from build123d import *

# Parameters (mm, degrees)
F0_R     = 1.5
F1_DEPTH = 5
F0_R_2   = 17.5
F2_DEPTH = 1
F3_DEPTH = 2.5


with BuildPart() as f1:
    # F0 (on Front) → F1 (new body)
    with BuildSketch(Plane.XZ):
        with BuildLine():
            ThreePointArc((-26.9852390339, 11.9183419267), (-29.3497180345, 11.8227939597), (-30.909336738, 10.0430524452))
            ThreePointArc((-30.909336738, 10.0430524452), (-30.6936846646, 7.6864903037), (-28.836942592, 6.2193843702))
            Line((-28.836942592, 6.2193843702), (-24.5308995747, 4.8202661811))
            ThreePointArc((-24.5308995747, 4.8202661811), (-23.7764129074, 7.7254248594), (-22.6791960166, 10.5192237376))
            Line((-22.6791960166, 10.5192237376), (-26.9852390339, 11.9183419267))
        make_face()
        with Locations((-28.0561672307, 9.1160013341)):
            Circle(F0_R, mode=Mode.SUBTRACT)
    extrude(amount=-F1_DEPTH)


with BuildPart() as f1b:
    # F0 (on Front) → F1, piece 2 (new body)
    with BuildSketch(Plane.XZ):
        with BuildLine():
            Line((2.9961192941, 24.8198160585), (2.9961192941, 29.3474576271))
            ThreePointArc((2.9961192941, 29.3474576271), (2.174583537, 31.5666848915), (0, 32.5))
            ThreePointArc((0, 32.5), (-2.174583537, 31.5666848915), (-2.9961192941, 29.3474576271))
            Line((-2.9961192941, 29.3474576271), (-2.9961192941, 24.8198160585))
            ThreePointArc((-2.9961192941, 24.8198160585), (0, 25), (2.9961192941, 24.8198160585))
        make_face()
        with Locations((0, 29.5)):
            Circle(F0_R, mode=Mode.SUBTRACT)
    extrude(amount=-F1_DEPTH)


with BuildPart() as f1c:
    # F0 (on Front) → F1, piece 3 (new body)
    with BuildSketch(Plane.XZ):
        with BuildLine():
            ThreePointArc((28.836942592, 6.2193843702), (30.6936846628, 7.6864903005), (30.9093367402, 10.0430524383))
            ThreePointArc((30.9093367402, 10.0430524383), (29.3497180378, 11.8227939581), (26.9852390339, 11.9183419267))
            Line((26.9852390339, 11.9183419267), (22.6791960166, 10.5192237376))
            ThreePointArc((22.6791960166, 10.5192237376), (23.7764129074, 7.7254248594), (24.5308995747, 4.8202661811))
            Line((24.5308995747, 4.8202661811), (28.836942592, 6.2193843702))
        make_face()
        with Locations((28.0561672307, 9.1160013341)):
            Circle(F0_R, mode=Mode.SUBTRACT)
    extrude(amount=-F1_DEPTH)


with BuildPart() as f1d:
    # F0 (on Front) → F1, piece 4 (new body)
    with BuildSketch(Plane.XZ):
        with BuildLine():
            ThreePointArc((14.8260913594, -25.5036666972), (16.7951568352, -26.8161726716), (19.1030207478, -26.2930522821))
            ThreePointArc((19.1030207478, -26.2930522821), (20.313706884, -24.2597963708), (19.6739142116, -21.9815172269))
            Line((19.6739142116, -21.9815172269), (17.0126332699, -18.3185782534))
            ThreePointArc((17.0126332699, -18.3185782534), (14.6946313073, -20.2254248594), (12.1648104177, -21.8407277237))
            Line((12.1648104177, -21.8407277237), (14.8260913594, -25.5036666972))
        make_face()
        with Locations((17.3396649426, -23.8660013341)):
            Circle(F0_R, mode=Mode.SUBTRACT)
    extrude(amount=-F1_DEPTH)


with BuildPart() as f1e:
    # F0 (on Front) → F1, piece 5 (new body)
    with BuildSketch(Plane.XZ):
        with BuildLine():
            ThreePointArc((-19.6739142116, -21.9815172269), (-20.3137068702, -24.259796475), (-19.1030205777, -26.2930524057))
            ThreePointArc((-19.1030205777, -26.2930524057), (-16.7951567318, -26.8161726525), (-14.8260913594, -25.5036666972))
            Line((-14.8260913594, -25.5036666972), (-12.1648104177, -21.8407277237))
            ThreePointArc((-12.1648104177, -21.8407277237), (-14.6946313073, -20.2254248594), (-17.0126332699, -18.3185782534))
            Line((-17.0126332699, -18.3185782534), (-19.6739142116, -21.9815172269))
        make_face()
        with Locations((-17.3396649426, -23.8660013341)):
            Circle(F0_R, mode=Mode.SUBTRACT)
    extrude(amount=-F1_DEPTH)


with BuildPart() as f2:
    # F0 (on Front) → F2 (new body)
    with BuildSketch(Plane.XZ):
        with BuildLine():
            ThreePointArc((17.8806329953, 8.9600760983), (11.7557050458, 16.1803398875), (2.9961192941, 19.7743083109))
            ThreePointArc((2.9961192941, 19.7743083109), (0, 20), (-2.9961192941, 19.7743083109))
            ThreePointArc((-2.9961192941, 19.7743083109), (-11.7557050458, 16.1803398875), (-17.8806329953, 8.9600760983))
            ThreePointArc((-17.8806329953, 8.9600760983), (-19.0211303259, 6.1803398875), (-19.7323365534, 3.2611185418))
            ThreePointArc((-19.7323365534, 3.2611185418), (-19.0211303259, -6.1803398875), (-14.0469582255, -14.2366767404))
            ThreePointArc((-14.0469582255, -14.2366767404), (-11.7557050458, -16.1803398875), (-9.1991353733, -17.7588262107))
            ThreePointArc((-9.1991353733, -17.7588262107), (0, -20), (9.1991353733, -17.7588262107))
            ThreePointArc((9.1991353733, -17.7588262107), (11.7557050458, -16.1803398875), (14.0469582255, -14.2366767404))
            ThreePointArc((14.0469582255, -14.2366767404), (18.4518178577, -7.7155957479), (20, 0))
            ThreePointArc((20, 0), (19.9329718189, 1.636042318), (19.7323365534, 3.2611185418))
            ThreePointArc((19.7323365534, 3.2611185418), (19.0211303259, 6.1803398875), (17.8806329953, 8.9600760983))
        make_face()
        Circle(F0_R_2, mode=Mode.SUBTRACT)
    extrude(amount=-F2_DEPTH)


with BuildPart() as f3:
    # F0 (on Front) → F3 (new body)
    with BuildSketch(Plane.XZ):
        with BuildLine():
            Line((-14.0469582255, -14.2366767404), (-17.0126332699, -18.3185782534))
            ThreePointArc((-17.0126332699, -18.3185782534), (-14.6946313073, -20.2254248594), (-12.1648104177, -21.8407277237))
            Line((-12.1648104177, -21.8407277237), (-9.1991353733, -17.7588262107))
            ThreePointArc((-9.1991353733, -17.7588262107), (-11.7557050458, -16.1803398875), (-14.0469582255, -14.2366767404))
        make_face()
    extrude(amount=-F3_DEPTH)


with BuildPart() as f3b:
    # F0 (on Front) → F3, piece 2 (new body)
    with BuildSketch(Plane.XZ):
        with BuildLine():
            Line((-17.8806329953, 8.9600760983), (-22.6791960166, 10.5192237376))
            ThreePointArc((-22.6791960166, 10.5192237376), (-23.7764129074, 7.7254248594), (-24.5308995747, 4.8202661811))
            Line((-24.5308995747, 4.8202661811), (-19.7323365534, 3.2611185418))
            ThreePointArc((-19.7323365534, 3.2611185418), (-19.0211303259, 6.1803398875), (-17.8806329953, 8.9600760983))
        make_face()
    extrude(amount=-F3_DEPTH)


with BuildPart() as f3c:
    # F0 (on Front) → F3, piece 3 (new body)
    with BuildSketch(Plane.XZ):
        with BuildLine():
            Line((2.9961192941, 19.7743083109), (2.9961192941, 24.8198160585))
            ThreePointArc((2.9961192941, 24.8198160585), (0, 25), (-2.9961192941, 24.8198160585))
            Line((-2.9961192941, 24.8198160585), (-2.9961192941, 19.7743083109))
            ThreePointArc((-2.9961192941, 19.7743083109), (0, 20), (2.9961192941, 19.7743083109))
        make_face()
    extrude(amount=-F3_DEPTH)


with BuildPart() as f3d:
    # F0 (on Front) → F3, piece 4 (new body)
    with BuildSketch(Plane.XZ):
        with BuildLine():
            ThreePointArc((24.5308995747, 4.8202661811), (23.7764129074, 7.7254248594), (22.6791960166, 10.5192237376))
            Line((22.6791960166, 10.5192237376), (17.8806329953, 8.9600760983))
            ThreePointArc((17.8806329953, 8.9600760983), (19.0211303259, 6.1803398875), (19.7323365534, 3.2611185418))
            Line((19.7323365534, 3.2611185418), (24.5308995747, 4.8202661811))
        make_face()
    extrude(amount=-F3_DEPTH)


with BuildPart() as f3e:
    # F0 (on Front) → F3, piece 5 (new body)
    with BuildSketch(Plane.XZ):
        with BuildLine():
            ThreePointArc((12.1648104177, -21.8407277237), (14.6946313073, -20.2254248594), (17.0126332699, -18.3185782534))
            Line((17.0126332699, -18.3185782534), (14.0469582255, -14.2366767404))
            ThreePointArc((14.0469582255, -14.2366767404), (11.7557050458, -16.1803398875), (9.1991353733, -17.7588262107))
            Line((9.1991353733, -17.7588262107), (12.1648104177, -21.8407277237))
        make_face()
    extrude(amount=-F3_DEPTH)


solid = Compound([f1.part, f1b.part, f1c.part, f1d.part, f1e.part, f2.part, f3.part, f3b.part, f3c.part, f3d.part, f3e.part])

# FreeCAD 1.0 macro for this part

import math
import FreeCAD as App
import Part
import Sketcher

V = App.Vector
Q = App.Units.Quantity

doc = App.newDocument("Part")
body = doc.addObject("PartDesign::Body", "Body")

# Sketch on XZ plane
sketch1 = doc.addObject("Sketcher::SketchObject", "Sketch")
body.addObject(sketch1)
sketch1.AttachmentSupport = (doc.XZ_Plane, [""])
sketch1.MapMode = "FlatFace"
sketch1.addGeometry([
    Part.ArcOfCircle(Part.Circle(V(-28.1, 9.1, 0), V(0, 0, 1), 3), math.radians(69), math.radians(162)),  # 0
    Part.ArcOfCircle(Part.Circle(V(-28.1, 9.1, 0), V(0, 0, 1), 3), math.radians(162), math.radians(255)),  # 1
    Part.LineSegment(V(-28.8, 6.2, 0), V(-24.5, 4.8, 0)),  # 2
    Part.ArcOfCircle(Part.Circle(V(0, 0, 0), V(0, 0, 1), 25), math.radians(155.12), math.radians(168.88)),  # 3
    Part.LineSegment(V(-22.7, 10.5, 0), V(-27, 11.9, 0)),  # 4
    Part.Circle(V(-28.1, 9.1, 0), V(0, 0, 1), 1.5),  # 5
], False)
sketch1.addConstraint([
    Sketcher.Constraint("Tangent", 0, 2, 1, 1),
    Sketcher.Constraint("Coincident", 1, 2, 2, 1),
    Sketcher.Constraint("Coincident", 2, 2, 3, 2),
    Sketcher.Constraint("Coincident", 3, 1, 4, 1),
    Sketcher.Constraint("Coincident", 4, 2, 0, 1),
    Sketcher.Constraint("Coincident", 3, 3, -1, 1),
    Sketcher.Constraint("Coincident", 5, 3, 0, 3),
    Sketcher.Constraint("Equal", 0, 1),
    Sketcher.Constraint("Parallel", 2, 4),
    Sketcher.Constraint("Equal", 2, 4),
    Sketcher.Constraint("Diameter", 5, Q("3 mm")),
    Sketcher.Constraint("Radius", 0, Q("3 mm")),
    Sketcher.Constraint("Radius", 3, Q("25 mm")),
    Sketcher.Constraint("Angle", 2, Q("-18 deg")),
    Sketcher.Constraint("DistanceY", -1, 1, 0, 3, Q("9.116001 mm")),
    Sketcher.Constraint("DistanceX", 2, 2, -1, 1, Q("24.5309 mm")),
    Sketcher.Constraint("Distance", 2, Q("4.527642 mm")),
    Sketcher.Constraint("DistanceX", 0, 2, 0, 3, Q("2.85317 mm")),
])
pad1 = doc.addObject("PartDesign::Pad", "Pad")
body.addObject(pad1)
pad1.Profile = sketch1
pad1.Length = 5
pad1.Reversed = True
body2 = doc.addObject("PartDesign::Body", "Body001")

# Sketch on XZ plane
sketch2 = doc.addObject("Sketcher::SketchObject", "Sketch001")
body2.addObject(sketch2)
sketch2.AttachmentSupport = (doc.getObject("XZ_Plane001"), [""])
sketch2.MapMode = "FlatFace"
sketch2.addGeometry([
    Part.LineSegment(V(3, 24.8, 0), V(3, 29.3, 0)),  # 0
    Part.ArcOfCircle(Part.Circle(V(0, 29.5, 0), V(0, 0, 1), 3), math.radians(-3), math.radians(90)),  # 1
    Part.ArcOfCircle(Part.Circle(V(0, 29.5, 0), V(0, 0, 1), 3), math.radians(90), math.radians(183)),  # 2
    Part.LineSegment(V(-3, 29.3, 0), V(-3, 24.8, 0)),  # 3
    Part.ArcOfCircle(Part.Circle(V(0, 0, 0), V(0, 0, 1), 25), math.radians(83.12), math.radians(96.88)),  # 4
    Part.Circle(V(0, 29.5, 0), V(0, 0, 1), 1.5),  # 5
], False)
sketch2.addConstraint([
    Sketcher.Constraint("Coincident", 0, 2, 1, 1),
    Sketcher.Constraint("Tangent", 1, 2, 2, 1),
    Sketcher.Constraint("Coincident", 2, 2, 3, 1),
    Sketcher.Constraint("Coincident", 3, 2, 4, 2),
    Sketcher.Constraint("Coincident", 4, 1, 0, 1),
    Sketcher.Constraint("Vertical", 0),
    Sketcher.Constraint("Vertical", 3),
    Sketcher.Constraint("Coincident", 4, 3, -1, 1),
    Sketcher.Constraint("Coincident", 5, 3, 1, 3),
    Sketcher.Constraint("Equal", 1, 2),
    Sketcher.Constraint("Symmetric", 0, 2, 2, 2, -2),
    Sketcher.Constraint("PointOnObject", 1, 2, -2),
    Sketcher.Constraint("Diameter", 5, Q("3 mm")),
    Sketcher.Constraint("Radius", 1, Q("3 mm")),
    Sketcher.Constraint("Radius", 4, Q("25 mm")),
    Sketcher.Constraint("DistanceY", -1, 1, 1, 3, Q("29.5 mm")),
    Sketcher.Constraint("DistanceY", 0, 1, 0, 2, Q("4.527642 mm")),
])
pad2 = doc.addObject("PartDesign::Pad", "Pad001")
body2.addObject(pad2)
pad2.Profile = sketch2
pad2.Length = 5
pad2.Reversed = True
body3 = doc.addObject("PartDesign::Body", "Body002")

# Sketch on XZ plane
sketch3 = doc.addObject("Sketcher::SketchObject", "Sketch002")
body3.addObject(sketch3)
sketch3.AttachmentSupport = (doc.getObject("XZ_Plane002"), [""])
sketch3.MapMode = "FlatFace"
sketch3.addGeometry([
    Part.ArcOfCircle(Part.Circle(V(28.1, 9.1, 0), V(0, 0, 1), 3), math.radians(-75), math.radians(18)),  # 0
    Part.ArcOfCircle(Part.Circle(V(28.1, 9.1, 0), V(0, 0, 1), 3), math.radians(18), math.radians(111)),  # 1
    Part.LineSegment(V(27, 11.9, 0), V(22.7, 10.5, 0)),  # 2
    Part.ArcOfCircle(Part.Circle(V(0, 0, 0), V(0, 0, 1), 25), math.radians(11.12), math.radians(24.88)),  # 3
    Part.LineSegment(V(24.5, 4.8, 0), V(28.8, 6.2, 0)),  # 4
    Part.Circle(V(28.1, 9.1, 0), V(0, 0, 1), 1.5),  # 5
], False)
sketch3.addConstraint([
    Sketcher.Constraint("Tangent", 0, 2, 1, 1),
    Sketcher.Constraint("Coincident", 1, 2, 2, 1),
    Sketcher.Constraint("Coincident", 2, 2, 3, 2),
    Sketcher.Constraint("Coincident", 3, 1, 4, 1),
    Sketcher.Constraint("Coincident", 4, 2, 0, 1),
    Sketcher.Constraint("Coincident", 3, 3, -1, 1),
    Sketcher.Constraint("Coincident", 5, 3, 0, 3),
    Sketcher.Constraint("Equal", 0, 1),
    Sketcher.Constraint("Parallel", 2, 4),
    Sketcher.Constraint("Equal", 2, 4),
    Sketcher.Constraint("Diameter", 5, Q("3 mm")),
    Sketcher.Constraint("Radius", 0, Q("3 mm")),
    Sketcher.Constraint("Radius", 3, Q("25 mm")),
    Sketcher.Constraint("Angle", 2, Q("-162 deg")),
    Sketcher.Constraint("DistanceY", -1, 1, 0, 3, Q("9.116001 mm")),
    Sketcher.Constraint("DistanceX", -1, 1, 3, 1, Q("24.5309 mm")),
    Sketcher.Constraint("Distance", 2, Q("4.527642 mm")),
    Sketcher.Constraint("DistanceX", 0, 3, 0, 2, Q("2.85317 mm")),
])
pad3 = doc.addObject("PartDesign::Pad", "Pad002")
body3.addObject(pad3)
pad3.Profile = sketch3
pad3.Length = 5
pad3.Reversed = True
body4 = doc.addObject("PartDesign::Body", "Body003")

# Sketch on XZ plane
sketch4 = doc.addObject("Sketcher::SketchObject", "Sketch003")
body4.addObject(sketch4)
sketch4.AttachmentSupport = (doc.getObject("XZ_Plane003"), [""])
sketch4.MapMode = "FlatFace"
sketch4.addGeometry([
    Part.ArcOfCircle(Part.Circle(V(17.3, -23.9, 0), V(0, 0, 1), 3), math.radians(-147), math.radians(-54)),  # 0
    Part.ArcOfCircle(Part.Circle(V(17.3, -23.9, 0), V(0, 0, 1), 3), math.radians(-54), math.radians(39)),  # 1
    Part.LineSegment(V(19.7, -22, 0), V(17, -18.3, 0)),  # 2
    Part.ArcOfCircle(Part.Circle(V(0, 0, 0), V(0, 0, 1), 25), math.radians(-60.88), math.radians(-47.12)),  # 3
    Part.LineSegment(V(12.2, -21.8, 0), V(14.8, -25.5, 0)),  # 4
    Part.Circle(V(17.3, -23.9, 0), V(0, 0, 1), 1.5),  # 5
], False)
sketch4.addConstraint([
    Sketcher.Constraint("Tangent", 0, 2, 1, 1),
    Sketcher.Constraint("Coincident", 1, 2, 2, 1),
    Sketcher.Constraint("Coincident", 2, 2, 3, 2),
    Sketcher.Constraint("Coincident", 3, 1, 4, 1),
    Sketcher.Constraint("Coincident", 4, 2, 0, 1),
    Sketcher.Constraint("Coincident", 3, 3, -1, 1),
    Sketcher.Constraint("Coincident", 5, 3, 0, 3),
    Sketcher.Constraint("Equal", 0, 1),
    Sketcher.Constraint("Parallel", 2, 4),
    Sketcher.Constraint("Equal", 2, 4),
    Sketcher.Constraint("Diameter", 5, Q("3 mm")),
    Sketcher.Constraint("Radius", 0, Q("3 mm")),
    Sketcher.Constraint("Radius", 3, Q("25 mm")),
    Sketcher.Constraint("Angle", 2, Q("126 deg")),
    Sketcher.Constraint("DistanceY", 0, 3, -1, 1, Q("23.866001 mm")),
    Sketcher.Constraint("Distance", 2, Q("4.527642 mm")),
    Sketcher.Constraint("DistanceX", -1, 1, 0, 2, Q("19.103021 mm")),
    Sketcher.Constraint("DistanceY", 2, 2, -1, 1, Q("18.318578 mm")),
])
pad4 = doc.addObject("PartDesign::Pad", "Pad003")
body4.addObject(pad4)
pad4.Profile = sketch4
pad4.Length = 5
pad4.Reversed = True
body5 = doc.addObject("PartDesign::Body", "Body004")

# Sketch on XZ plane
sketch5 = doc.addObject("Sketcher::SketchObject", "Sketch004")
body5.addObject(sketch5)
sketch5.AttachmentSupport = (doc.getObject("XZ_Plane004"), [""])
sketch5.MapMode = "FlatFace"
sketch5.addGeometry([
    Part.ArcOfCircle(Part.Circle(V(-17.3, -23.9, 0), V(0, 0, 1), 3), math.radians(141), math.radians(234)),  # 0
    Part.ArcOfCircle(Part.Circle(V(-17.3, -23.9, 0), V(0, 0, 1), 3), math.radians(-126), math.radians(-33)),  # 1
    Part.LineSegment(V(-14.8, -25.5, 0), V(-12.2, -21.8, 0)),  # 2
    Part.ArcOfCircle(Part.Circle(V(0, 0, 0), V(0, 0, 1), 25), math.radians(-132.88), math.radians(-119.12)),  # 3
    Part.LineSegment(V(-17, -18.3, 0), V(-19.7, -22, 0)),  # 4
    Part.Circle(V(-17.3, -23.9, 0), V(0, 0, 1), 1.5),  # 5
], False)
sketch5.addConstraint([
    Sketcher.Constraint("Tangent", 0, 2, 1, 1),
    Sketcher.Constraint("Coincident", 1, 2, 2, 1),
    Sketcher.Constraint("Coincident", 2, 2, 3, 2),
    Sketcher.Constraint("Coincident", 3, 1, 4, 1),
    Sketcher.Constraint("Coincident", 4, 2, 0, 1),
    Sketcher.Constraint("Coincident", 3, 3, -1, 1),
    Sketcher.Constraint("Coincident", 5, 3, 0, 3),
    Sketcher.Constraint("Equal", 0, 1),
    Sketcher.Constraint("Parallel", 2, 4),
    Sketcher.Constraint("Equal", 2, 4),
    Sketcher.Constraint("Diameter", 5, Q("3 mm")),
    Sketcher.Constraint("Radius", 0, Q("3 mm")),
    Sketcher.Constraint("Radius", 3, Q("25 mm")),
    Sketcher.Constraint("Angle", 2, Q("54 deg")),
    Sketcher.Constraint("DistanceY", 0, 3, -1, 1, Q("23.866001 mm")),
    Sketcher.Constraint("Distance", 2, Q("4.527642 mm")),
    Sketcher.Constraint("DistanceX", 0, 2, -1, 1, Q("19.103021 mm")),
    Sketcher.Constraint("DistanceX", 1, 2, -1, 1, Q("14.826091 mm")),
])
pad5 = doc.addObject("PartDesign::Pad", "Pad004")
body5.addObject(pad5)
pad5.Profile = sketch5
pad5.Length = 5
pad5.Reversed = True
body6 = doc.addObject("PartDesign::Body", "Body005")

# Sketch on XZ plane
sketch6 = doc.addObject("Sketcher::SketchObject", "Sketch005")
body6.addObject(sketch6)
sketch6.AttachmentSupport = (doc.getObject("XZ_Plane005"), [""])
sketch6.MapMode = "FlatFace"
sketch6.addGeometry([
    Part.ArcOfCircle(Part.Circle(V(0, 0, 0), V(0, 0, 1), 20), math.radians(27), math.radians(81)),  # 0
    Part.ArcOfCircle(Part.Circle(V(0, 0, 0), V(0, 0, 1), 20), math.radians(81.38), math.radians(98.62)),  # 1
    Part.ArcOfCircle(Part.Circle(V(0, 0, 0), V(0, 0, 1), 20), math.radians(99), math.radians(153)),  # 2
    Part.ArcOfCircle(Part.Circle(V(0, 0, 0), V(0, 0, 1), 20), math.radians(153.38), math.radians(170.62)),  # 3
    Part.ArcOfCircle(Part.Circle(V(0, 0, 0), V(0, 0, 1), 20), math.radians(171), math.radians(225)),  # 4
    Part.ArcOfCircle(Part.Circle(V(0, 0, 0), V(0, 0, 1), 20), math.radians(-134.62), math.radians(-117.38)),  # 5
    Part.ArcOfCircle(Part.Circle(V(0, 0, 0), V(0, 0, 1), 20), math.radians(-117), math.radians(-63)),  # 6
    Part.ArcOfCircle(Part.Circle(V(0, 0, 0), V(0, 0, 1), 20), math.radians(-62.62), math.radians(-45.38)),  # 7
    Part.ArcOfCircle(Part.Circle(V(0, 0, 0), V(0, 0, 1), 20), math.radians(-45), math.radians(0)),  # 8
    Part.ArcOfCircle(Part.Circle(V(0, 0, 0), V(0, 0, 1), 20), math.radians(0), math.radians(9.38)),  # 9
    Part.ArcOfCircle(Part.Circle(V(0, 0, 0), V(0, 0, 1), 20), math.radians(9.38), math.radians(26.62)),  # 10
    Part.Circle(V(0, 0, 0), V(0, 0, 1), 17.5),  # 11
], False)
sketch6.addConstraint([
    Sketcher.Constraint("Tangent", 0, 2, 1, 1),
    Sketcher.Constraint("Tangent", 1, 2, 2, 1),
    Sketcher.Constraint("Tangent", 2, 2, 3, 1),
    Sketcher.Constraint("Tangent", 3, 2, 4, 1),
    Sketcher.Constraint("Tangent", 4, 2, 5, 1),
    Sketcher.Constraint("Tangent", 5, 2, 6, 1),
    Sketcher.Constraint("Tangent", 6, 2, 7, 1),
    Sketcher.Constraint("Tangent", 7, 2, 8, 1),
    Sketcher.Constraint("Tangent", 8, 2, 9, 1),
    Sketcher.Constraint("Tangent", 9, 2, 10, 1),
    Sketcher.Constraint("Tangent", 10, 2, 0, 1),
    Sketcher.Constraint("Coincident", 0, 3, -1, 1),
    Sketcher.Constraint("Coincident", 2, 3, -1, 1),
    Sketcher.Constraint("Coincident", 4, 3, -1, 1),
    Sketcher.Constraint("Coincident", 6, 3, -1, 1),
    Sketcher.Constraint("Coincident", 8, 3, -1, 1),
    Sketcher.Constraint("Coincident", 11, 3, -1, 1),
    Sketcher.Constraint("PointOnObject", 8, 2, -1),
    Sketcher.Constraint("Horizontal", 0, 2, 1, 2),
    Sketcher.Constraint("Horizontal", 5, 2, 6, 2),
    Sketcher.Constraint("Horizontal", 4, 2, 7, 2),
    Sketcher.Constraint("Horizontal", 3, 2, 9, 2),
    Sketcher.Constraint("Horizontal", 2, 2, 10, 2),
    Sketcher.Constraint("Diameter", 11, Q("35 mm")),
    Sketcher.Constraint("Radius", 0, Q("20 mm")),
    Sketcher.Constraint("DistanceX", -1, 1, 0, 2, Q("2.996119 mm")),
    Sketcher.Constraint("DistanceY", -1, 1, 3, 2, Q("3.261119 mm")),
    Sketcher.Constraint("DistanceX", 4, 2, -1, 1, Q("14.046958 mm")),
    Sketcher.Constraint("DistanceY", 5, 2, 4, 2, Q("3.522149 mm")),
    Sketcher.Constraint("DistanceX", 2, 2, -1, 1, Q("17.880633 mm")),
])
pad6 = doc.addObject("PartDesign::Pad", "Pad005")
body6.addObject(pad6)
pad6.Profile = sketch6
pad6.Length = 1
pad6.Reversed = True
body7 = doc.addObject("PartDesign::Body", "Body006")

# Sketch on XZ plane
sketch7 = doc.addObject("Sketcher::SketchObject", "Sketch006")
body7.addObject(sketch7)
sketch7.AttachmentSupport = (doc.getObject("XZ_Plane006"), [""])
sketch7.MapMode = "FlatFace"
sketch7.addGeometry([
    Part.LineSegment(V(-14, -14, 0), V(-17, -18, 0)),
    Part.ArcOfCircle(Part.Circle(V(0, 0, 0), V(0, 0, 1), 25), math.radians(-132.88), math.radians(-119.12)),
    Part.LineSegment(V(-12, -22, 0), V(-9, -18, 0)),
    Part.ArcOfCircle(Part.Circle(V(0, 0, 0), V(0, 0, 1), 20), math.radians(-134.62), math.radians(-117.38)),
], False)
sketch7.addConstraint([
    Sketcher.Constraint("Coincident", 0, 2, 1, 1),
    Sketcher.Constraint("Coincident", 1, 2, 2, 1),
    Sketcher.Constraint("Coincident", 2, 2, 3, 2),
    Sketcher.Constraint("Coincident", 3, 1, 0, 1),
    Sketcher.Constraint("Coincident", 1, 3, -1, 1),
    Sketcher.Constraint("Coincident", 3, 3, -1, 1),
    Sketcher.Constraint("Parallel", 0, 2),
    Sketcher.Constraint("Equal", 0, 2),
    Sketcher.Constraint("Radius", 1, Q("25 mm")),
    Sketcher.Constraint("Radius", 3, Q("20 mm")),
    Sketcher.Constraint("Angle", 0, Q("-126 deg")),
    Sketcher.Constraint("DistanceY", 0, 2, -1, 1, Q("18.318578 mm")),
])
pad7 = doc.addObject("PartDesign::Pad", "Pad006")
body7.addObject(pad7)
pad7.Profile = sketch7
pad7.Length = 2.5
pad7.Reversed = True
body8 = doc.addObject("PartDesign::Body", "Body007")

# Sketch on XZ plane
sketch8 = doc.addObject("Sketcher::SketchObject", "Sketch007")
body8.addObject(sketch8)
sketch8.AttachmentSupport = (doc.getObject("XZ_Plane007"), [""])
sketch8.MapMode = "FlatFace"
sketch8.addGeometry([
    Part.LineSegment(V(-18, 9, 0), V(-23, 11, 0)),
    Part.ArcOfCircle(Part.Circle(V(0, 0, 0), V(0, 0, 1), 25), math.radians(155.12), math.radians(168.88)),
    Part.LineSegment(V(-25, 5, 0), V(-20, 3, 0)),
    Part.ArcOfCircle(Part.Circle(V(0, 0, 0), V(0, 0, 1), 20), math.radians(153.38), math.radians(170.62)),
], False)
sketch8.addConstraint([
    Sketcher.Constraint("Coincident", 0, 2, 1, 1),
    Sketcher.Constraint("Coincident", 1, 2, 2, 1),
    Sketcher.Constraint("Coincident", 2, 2, 3, 2),
    Sketcher.Constraint("Coincident", 3, 1, 0, 1),
    Sketcher.Constraint("Coincident", 1, 3, -1, 1),
    Sketcher.Constraint("Coincident", 3, 3, -1, 1),
    Sketcher.Constraint("Parallel", 0, 2),
    Sketcher.Constraint("Equal", 0, 2),
    Sketcher.Constraint("Radius", 1, Q("25 mm")),
    Sketcher.Constraint("Radius", 3, Q("20 mm")),
    Sketcher.Constraint("Angle", 0, Q("162 deg")),
    Sketcher.Constraint("DistanceX", 1, 2, -1, 1, Q("24.5309 mm")),
])
pad8 = doc.addObject("PartDesign::Pad", "Pad007")
body8.addObject(pad8)
pad8.Profile = sketch8
pad8.Length = 2.5
pad8.Reversed = True
body9 = doc.addObject("PartDesign::Body", "Body008")

# Sketch on XZ plane
sketch9 = doc.addObject("Sketcher::SketchObject", "Sketch008")
body9.addObject(sketch9)
sketch9.AttachmentSupport = (doc.getObject("XZ_Plane008"), [""])
sketch9.MapMode = "FlatFace"
sketch9.addGeometry([
    Part.LineSegment(V(3, 20, 0), V(3, 25, 0)),
    Part.ArcOfCircle(Part.Circle(V(0, 0, 0), V(0, 0, 1), 25), math.radians(83.12), math.radians(96.88)),
    Part.LineSegment(V(-3, 25, 0), V(-3, 20, 0)),
    Part.ArcOfCircle(Part.Circle(V(0, 0, 0), V(0, 0, 1), 20), math.radians(81.38), math.radians(98.62)),
], False)
sketch9.addConstraint([
    Sketcher.Constraint("Coincident", 0, 2, 1, 1),
    Sketcher.Constraint("Coincident", 1, 2, 2, 1),
    Sketcher.Constraint("Coincident", 2, 2, 3, 2),
    Sketcher.Constraint("Coincident", 3, 1, 0, 1),
    Sketcher.Constraint("Vertical", 0),
    Sketcher.Constraint("Vertical", 2),
    Sketcher.Constraint("Coincident", 1, 3, -1, 1),
    Sketcher.Constraint("Coincident", 3, 3, -1, 1),
    Sketcher.Constraint("Horizontal", 0, 2, 1, 2),
    Sketcher.Constraint("Radius", 1, Q("25 mm")),
    Sketcher.Constraint("Radius", 3, Q("20 mm")),
    Sketcher.Constraint("DistanceY", 0, 1, 0, 2, Q("5.045508 mm")),
])
pad9 = doc.addObject("PartDesign::Pad", "Pad008")
body9.addObject(pad9)
pad9.Profile = sketch9
pad9.Length = 2.5
pad9.Reversed = True
body10 = doc.addObject("PartDesign::Body", "Body009")

# Sketch on XZ plane
sketch10 = doc.addObject("Sketcher::SketchObject", "Sketch009")
body10.addObject(sketch10)
sketch10.AttachmentSupport = (doc.getObject("XZ_Plane009"), [""])
sketch10.MapMode = "FlatFace"
sketch10.addGeometry([
    Part.ArcOfCircle(Part.Circle(V(0, 0, 0), V(0, 0, 1), 25), math.radians(11.12), math.radians(24.88)),
    Part.LineSegment(V(23, 11, 0), V(18, 9, 0)),
    Part.ArcOfCircle(Part.Circle(V(0, 0, 0), V(0, 0, 1), 20), math.radians(9.38), math.radians(26.62)),
    Part.LineSegment(V(20, 3, 0), V(25, 5, 0)),
], False)
sketch10.addConstraint([
    Sketcher.Constraint("Coincident", 0, 2, 1, 1),
    Sketcher.Constraint("Coincident", 1, 2, 2, 2),
    Sketcher.Constraint("Coincident", 2, 1, 3, 1),
    Sketcher.Constraint("Coincident", 3, 2, 0, 1),
    Sketcher.Constraint("Coincident", 0, 3, -1, 1),
    Sketcher.Constraint("Coincident", 2, 3, -1, 1),
    Sketcher.Constraint("Parallel", 1, 3),
    Sketcher.Constraint("Equal", 1, 3),
    Sketcher.Constraint("Radius", 0, Q("25 mm")),
    Sketcher.Constraint("Radius", 2, Q("20 mm")),
    Sketcher.Constraint("Angle", 1, Q("-162 deg")),
    Sketcher.Constraint("DistanceX", -1, 1, 3, 2, Q("24.5309 mm")),
])
pad10 = doc.addObject("PartDesign::Pad", "Pad009")
body10.addObject(pad10)
pad10.Profile = sketch10
pad10.Length = 2.5
pad10.Reversed = True
body11 = doc.addObject("PartDesign::Body", "Body010")

# Sketch on XZ plane
sketch11 = doc.addObject("Sketcher::SketchObject", "Sketch010")
body11.addObject(sketch11)
sketch11.AttachmentSupport = (doc.getObject("XZ_Plane010"), [""])
sketch11.MapMode = "FlatFace"
sketch11.addGeometry([
    Part.ArcOfCircle(Part.Circle(V(0, 0, 0), V(0, 0, 1), 25), math.radians(-60.88), math.radians(-47.12)),
    Part.LineSegment(V(17, -18, 0), V(14, -14, 0)),
    Part.ArcOfCircle(Part.Circle(V(0, 0, 0), V(0, 0, 1), 20), math.radians(-62.62), math.radians(-45.38)),
    Part.LineSegment(V(9, -18, 0), V(12, -22, 0)),
], False)
sketch11.addConstraint([
    Sketcher.Constraint("Coincident", 0, 2, 1, 1),
    Sketcher.Constraint("Coincident", 1, 2, 2, 2),
    Sketcher.Constraint("Coincident", 2, 1, 3, 1),
    Sketcher.Constraint("Coincident", 3, 2, 0, 1),
    Sketcher.Constraint("Coincident", 0, 3, -1, 1),
    Sketcher.Constraint("Coincident", 2, 3, -1, 1),
    Sketcher.Constraint("Parallel", 1, 3),
    Sketcher.Constraint("Equal", 1, 3),
    Sketcher.Constraint("Radius", 0, Q("25 mm")),
    Sketcher.Constraint("Radius", 2, Q("20 mm")),
    Sketcher.Constraint("Angle", 1, Q("126 deg")),
    Sketcher.Constraint("DistanceY", 0, 2, -1, 1, Q("18.318578 mm")),
])
pad11 = doc.addObject("PartDesign::Pad", "Pad010")
body11.addObject(pad11)
pad11.Profile = sketch11
pad11.Length = 2.5
pad11.Reversed = True

doc.recompute()
